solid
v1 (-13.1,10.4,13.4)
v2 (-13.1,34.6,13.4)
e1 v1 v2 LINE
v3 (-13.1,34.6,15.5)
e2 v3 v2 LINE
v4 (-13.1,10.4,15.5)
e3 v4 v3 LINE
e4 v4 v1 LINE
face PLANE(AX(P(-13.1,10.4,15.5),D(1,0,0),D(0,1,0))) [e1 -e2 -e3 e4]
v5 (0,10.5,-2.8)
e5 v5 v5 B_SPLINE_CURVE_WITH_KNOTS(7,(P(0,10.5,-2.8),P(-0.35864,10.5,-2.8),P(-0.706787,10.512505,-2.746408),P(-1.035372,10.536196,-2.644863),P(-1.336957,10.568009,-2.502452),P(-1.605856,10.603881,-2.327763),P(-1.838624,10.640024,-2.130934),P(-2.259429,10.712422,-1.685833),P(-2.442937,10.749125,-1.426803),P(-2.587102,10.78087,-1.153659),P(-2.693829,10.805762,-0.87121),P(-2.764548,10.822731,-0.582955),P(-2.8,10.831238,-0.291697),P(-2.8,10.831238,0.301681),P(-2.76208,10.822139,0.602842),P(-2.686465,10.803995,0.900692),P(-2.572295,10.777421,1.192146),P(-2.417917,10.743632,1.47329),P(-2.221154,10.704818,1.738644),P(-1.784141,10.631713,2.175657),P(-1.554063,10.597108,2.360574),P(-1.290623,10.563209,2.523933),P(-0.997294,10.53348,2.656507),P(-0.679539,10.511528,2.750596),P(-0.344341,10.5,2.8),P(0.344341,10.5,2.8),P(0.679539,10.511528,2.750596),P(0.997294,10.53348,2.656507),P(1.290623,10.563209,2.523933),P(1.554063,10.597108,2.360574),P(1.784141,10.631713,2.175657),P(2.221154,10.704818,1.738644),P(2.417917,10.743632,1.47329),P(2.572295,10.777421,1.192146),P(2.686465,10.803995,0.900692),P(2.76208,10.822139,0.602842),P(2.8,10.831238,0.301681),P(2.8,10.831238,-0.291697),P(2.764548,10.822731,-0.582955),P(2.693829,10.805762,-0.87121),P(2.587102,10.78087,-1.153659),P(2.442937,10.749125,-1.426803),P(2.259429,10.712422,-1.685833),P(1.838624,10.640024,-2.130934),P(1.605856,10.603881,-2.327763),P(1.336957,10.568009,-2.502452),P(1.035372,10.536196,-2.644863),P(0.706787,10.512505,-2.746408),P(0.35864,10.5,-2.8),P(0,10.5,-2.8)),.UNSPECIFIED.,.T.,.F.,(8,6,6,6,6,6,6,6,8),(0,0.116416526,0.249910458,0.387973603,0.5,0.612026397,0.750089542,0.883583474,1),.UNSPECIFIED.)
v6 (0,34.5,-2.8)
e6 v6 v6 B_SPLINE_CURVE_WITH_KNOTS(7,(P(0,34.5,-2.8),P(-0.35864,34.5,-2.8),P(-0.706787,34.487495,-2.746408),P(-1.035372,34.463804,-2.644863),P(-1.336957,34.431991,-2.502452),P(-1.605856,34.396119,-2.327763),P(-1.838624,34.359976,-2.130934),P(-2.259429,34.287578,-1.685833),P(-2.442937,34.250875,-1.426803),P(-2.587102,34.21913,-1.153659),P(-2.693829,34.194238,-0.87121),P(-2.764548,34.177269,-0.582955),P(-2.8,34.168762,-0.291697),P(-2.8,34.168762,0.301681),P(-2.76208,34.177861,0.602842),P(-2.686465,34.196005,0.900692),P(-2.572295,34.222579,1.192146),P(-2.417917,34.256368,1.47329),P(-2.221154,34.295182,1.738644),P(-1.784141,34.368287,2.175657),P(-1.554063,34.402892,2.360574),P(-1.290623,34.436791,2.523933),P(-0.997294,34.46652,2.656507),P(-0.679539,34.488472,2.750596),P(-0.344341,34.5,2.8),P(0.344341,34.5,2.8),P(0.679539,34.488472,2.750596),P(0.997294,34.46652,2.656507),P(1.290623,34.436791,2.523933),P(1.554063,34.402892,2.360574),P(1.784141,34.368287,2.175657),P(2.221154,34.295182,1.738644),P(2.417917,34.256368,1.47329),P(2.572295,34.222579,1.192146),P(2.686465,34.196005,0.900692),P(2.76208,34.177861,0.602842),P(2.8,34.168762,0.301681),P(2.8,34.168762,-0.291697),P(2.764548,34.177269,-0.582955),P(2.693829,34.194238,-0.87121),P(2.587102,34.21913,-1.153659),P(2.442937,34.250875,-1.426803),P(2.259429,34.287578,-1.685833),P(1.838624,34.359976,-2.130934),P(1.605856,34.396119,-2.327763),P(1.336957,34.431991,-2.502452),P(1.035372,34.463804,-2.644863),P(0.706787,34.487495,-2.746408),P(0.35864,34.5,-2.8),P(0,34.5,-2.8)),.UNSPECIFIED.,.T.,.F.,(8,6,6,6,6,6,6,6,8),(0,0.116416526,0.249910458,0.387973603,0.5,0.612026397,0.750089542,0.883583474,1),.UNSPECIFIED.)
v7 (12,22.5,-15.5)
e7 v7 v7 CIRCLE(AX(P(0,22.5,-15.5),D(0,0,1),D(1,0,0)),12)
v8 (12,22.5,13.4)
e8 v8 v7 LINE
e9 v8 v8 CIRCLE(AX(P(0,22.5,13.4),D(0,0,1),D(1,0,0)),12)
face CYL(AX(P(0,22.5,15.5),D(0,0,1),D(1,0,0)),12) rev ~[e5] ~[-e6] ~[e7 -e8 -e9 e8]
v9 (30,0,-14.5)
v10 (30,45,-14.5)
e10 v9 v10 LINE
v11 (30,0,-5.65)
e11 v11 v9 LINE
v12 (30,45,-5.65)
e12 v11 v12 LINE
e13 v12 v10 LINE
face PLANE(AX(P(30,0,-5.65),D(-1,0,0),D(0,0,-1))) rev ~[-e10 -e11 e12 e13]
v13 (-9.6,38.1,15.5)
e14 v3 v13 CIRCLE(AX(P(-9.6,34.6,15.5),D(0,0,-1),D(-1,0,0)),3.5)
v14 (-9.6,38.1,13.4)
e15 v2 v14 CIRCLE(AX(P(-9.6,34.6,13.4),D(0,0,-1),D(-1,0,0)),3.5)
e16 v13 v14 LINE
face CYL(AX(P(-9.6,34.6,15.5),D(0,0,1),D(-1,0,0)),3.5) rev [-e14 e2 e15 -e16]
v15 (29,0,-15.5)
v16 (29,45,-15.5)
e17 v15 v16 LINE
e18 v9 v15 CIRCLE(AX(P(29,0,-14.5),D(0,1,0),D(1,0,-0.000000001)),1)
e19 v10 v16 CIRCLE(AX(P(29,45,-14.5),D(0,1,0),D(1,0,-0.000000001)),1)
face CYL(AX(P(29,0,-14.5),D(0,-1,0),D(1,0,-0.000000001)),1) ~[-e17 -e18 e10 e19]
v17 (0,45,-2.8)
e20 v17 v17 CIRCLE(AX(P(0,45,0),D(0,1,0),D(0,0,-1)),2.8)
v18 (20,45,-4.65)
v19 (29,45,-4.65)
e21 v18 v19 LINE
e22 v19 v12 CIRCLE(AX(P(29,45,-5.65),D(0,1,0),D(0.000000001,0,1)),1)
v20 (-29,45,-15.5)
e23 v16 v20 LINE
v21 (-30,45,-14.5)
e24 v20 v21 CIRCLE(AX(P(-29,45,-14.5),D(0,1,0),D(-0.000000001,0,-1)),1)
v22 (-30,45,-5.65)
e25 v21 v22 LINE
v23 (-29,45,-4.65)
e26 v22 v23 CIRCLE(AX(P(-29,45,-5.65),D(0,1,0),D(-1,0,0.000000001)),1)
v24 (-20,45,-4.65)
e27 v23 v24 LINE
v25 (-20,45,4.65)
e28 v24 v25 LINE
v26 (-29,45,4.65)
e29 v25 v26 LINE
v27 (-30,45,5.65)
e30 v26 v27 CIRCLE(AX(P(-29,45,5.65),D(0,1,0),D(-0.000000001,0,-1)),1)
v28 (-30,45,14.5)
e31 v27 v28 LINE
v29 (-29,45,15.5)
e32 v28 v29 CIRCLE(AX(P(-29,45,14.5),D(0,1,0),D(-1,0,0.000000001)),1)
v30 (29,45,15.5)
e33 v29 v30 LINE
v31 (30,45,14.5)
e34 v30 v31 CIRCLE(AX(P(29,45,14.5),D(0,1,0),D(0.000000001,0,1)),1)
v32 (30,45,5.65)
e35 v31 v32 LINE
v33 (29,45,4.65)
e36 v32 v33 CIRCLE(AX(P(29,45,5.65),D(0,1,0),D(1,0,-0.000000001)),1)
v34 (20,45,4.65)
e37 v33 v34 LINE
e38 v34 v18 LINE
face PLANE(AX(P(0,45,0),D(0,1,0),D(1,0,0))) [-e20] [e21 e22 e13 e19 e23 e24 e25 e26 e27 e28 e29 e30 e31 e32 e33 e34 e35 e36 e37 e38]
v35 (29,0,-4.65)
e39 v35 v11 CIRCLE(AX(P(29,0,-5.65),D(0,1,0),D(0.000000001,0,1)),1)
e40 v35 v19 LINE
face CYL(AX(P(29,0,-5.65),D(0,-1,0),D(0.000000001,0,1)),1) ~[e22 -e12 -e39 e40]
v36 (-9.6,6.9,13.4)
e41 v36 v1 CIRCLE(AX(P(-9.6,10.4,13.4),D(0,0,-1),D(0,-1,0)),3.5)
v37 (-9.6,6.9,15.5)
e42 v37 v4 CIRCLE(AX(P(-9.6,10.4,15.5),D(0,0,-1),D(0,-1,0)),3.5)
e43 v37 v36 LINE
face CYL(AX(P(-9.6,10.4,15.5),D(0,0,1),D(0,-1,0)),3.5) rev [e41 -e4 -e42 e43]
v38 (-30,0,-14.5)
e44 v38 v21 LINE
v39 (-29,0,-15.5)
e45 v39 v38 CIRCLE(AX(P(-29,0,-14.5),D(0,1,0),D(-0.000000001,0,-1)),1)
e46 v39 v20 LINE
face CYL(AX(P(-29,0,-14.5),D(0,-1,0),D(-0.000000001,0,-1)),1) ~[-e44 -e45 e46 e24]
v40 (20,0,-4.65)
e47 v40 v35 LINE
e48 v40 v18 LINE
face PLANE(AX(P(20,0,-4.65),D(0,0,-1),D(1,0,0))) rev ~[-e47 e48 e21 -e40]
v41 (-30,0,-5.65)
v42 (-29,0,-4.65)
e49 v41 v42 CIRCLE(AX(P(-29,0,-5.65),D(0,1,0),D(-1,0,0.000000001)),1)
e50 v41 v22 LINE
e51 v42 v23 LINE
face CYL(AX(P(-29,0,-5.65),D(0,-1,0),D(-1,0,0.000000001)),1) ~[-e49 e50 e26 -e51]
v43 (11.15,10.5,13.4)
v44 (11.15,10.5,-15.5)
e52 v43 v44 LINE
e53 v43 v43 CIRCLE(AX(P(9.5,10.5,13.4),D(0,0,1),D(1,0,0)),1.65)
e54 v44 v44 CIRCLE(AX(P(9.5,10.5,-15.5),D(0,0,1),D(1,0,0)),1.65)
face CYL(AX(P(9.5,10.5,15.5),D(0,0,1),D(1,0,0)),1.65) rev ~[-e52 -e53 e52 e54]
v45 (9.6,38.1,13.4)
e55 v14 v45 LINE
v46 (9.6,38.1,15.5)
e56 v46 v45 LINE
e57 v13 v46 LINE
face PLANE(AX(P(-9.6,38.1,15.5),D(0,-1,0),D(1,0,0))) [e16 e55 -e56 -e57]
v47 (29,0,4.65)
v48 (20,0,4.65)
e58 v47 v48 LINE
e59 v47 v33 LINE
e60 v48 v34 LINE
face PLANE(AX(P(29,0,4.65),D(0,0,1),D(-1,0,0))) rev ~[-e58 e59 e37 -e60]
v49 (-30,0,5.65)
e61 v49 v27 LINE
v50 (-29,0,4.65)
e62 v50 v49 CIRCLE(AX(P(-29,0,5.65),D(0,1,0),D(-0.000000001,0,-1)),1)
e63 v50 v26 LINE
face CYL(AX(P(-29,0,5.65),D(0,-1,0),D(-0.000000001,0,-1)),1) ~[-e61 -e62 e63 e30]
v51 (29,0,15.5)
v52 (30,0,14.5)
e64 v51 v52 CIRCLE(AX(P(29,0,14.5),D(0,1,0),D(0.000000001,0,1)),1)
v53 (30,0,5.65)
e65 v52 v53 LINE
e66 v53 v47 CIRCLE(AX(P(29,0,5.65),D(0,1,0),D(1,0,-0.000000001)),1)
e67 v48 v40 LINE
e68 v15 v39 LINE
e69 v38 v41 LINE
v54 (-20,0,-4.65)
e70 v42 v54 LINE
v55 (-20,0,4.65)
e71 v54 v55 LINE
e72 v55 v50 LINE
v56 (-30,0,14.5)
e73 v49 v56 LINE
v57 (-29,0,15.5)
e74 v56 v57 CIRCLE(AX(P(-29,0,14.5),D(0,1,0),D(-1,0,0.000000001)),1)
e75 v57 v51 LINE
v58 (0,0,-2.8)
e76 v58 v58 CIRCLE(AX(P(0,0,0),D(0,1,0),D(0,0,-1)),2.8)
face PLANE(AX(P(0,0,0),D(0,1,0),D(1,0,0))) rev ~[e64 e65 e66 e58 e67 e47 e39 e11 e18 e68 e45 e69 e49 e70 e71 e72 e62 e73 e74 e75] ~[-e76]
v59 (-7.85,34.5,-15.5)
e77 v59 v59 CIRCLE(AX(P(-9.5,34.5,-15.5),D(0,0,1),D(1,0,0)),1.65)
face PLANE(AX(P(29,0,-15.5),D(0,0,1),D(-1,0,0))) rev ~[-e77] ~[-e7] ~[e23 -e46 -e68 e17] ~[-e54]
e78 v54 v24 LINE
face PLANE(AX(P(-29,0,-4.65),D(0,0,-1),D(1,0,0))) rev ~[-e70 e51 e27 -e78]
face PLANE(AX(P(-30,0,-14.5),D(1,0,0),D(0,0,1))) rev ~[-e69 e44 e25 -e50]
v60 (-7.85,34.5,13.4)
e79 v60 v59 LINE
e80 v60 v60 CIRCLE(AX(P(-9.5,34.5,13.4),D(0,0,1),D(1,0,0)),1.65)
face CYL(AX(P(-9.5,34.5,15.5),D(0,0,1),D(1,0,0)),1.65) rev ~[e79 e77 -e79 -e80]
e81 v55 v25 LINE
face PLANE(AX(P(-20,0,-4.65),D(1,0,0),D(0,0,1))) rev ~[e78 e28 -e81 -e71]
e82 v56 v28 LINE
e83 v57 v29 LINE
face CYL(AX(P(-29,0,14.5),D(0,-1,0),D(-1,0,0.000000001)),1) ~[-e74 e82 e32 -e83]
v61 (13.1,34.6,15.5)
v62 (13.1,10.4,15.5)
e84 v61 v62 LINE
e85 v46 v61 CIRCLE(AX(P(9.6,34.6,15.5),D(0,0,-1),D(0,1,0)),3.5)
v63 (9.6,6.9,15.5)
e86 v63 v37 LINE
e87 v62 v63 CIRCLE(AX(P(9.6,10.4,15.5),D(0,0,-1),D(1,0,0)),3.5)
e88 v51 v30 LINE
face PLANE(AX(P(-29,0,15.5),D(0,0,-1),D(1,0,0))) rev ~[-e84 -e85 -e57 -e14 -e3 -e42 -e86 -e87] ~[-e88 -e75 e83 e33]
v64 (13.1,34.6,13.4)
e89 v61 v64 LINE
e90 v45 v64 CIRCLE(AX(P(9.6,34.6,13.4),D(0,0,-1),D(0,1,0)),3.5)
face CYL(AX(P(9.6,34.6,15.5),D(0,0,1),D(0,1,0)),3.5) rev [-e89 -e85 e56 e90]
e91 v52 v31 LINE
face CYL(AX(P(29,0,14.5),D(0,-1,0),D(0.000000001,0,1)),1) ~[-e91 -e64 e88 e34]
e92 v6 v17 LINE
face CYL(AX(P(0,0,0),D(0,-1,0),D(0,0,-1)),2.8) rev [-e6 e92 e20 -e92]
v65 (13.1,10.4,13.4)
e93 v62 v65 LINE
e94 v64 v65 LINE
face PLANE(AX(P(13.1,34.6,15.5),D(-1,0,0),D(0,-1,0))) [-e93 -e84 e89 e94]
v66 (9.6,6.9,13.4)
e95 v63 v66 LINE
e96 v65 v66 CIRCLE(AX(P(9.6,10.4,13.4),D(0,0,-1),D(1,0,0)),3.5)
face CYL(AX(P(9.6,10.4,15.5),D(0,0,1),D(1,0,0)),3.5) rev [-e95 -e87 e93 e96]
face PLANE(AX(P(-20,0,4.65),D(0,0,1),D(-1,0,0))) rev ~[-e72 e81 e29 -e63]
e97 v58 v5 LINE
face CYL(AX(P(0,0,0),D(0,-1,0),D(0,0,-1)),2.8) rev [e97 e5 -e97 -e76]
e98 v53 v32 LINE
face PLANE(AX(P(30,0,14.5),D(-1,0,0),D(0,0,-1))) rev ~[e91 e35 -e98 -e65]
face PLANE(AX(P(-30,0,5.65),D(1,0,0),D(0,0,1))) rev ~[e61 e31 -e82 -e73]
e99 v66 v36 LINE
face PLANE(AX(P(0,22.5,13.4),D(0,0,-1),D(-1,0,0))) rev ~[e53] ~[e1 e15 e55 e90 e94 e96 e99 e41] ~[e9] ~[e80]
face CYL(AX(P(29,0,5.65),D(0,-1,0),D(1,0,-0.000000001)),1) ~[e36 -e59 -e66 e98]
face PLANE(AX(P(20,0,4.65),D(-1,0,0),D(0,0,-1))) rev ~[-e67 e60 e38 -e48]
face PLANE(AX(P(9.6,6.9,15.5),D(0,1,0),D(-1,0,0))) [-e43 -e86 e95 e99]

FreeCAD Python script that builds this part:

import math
import FreeCAD as App
import Part
import Sketcher
from FreeCAD import Vector

doc = App.newDocument("Part")
body = doc.addObject("PartDesign::Body", "Body")

sketch1 = body.newObject("Sketcher::SketchObject", "Sketch")
sketch1.AttachmentSupport = (doc.getObject("XZ_Plane"), [""])
sketch1.MapMode = "FlatFace"
sketch1.addGeometry([
    Part.LineSegment(Vector(20, 4.65, 0), Vector(20, -4.65, 0)),
    Part.LineSegment(Vector(20, -4.65, 0), Vector(29, -4.65, 0)),
    Part.ArcOfCircle(Part.Circle(Vector(29, -5.65, 0), Vector(0, 0, 1), 1), math.radians(0), math.radians(90)),
    Part.LineSegment(Vector(30, -5.65, 0), Vector(30, -14.5, 0)),
    Part.ArcOfCircle(Part.Circle(Vector(29, -14.5, 0), Vector(0, 0, 1), 1), math.radians(-90), math.radians(0)),
    Part.LineSegment(Vector(29, -15.5, 0), Vector(-29, -15.5, 0)),
    Part.ArcOfCircle(Part.Circle(Vector(-29, -14.5, 0), Vector(0, 0, 1), 1), math.radians(-180), math.radians(-90)),
    Part.LineSegment(Vector(-30, -14.5, 0), Vector(-30, -5.65, 0)),
    Part.ArcOfCircle(Part.Circle(Vector(-29, -5.65, 0), Vector(0, 0, 1), 1), math.radians(90), math.radians(180)),
    Part.LineSegment(Vector(-29, -4.65, 0), Vector(-20, -4.65, 0)),
    Part.LineSegment(Vector(-20, -4.65, 0), Vector(-20, 4.65, 0)),
    Part.LineSegment(Vector(-20, 4.65, 0), Vector(-29, 4.65, 0)),
    Part.ArcOfCircle(Part.Circle(Vector(-29, 5.65, 0), Vector(0, 0, 1), 1), math.radians(-180), math.radians(-90)),
    Part.LineSegment(Vector(-30, 5.65, 0), Vector(-30, 14.5, 0)),
    Part.ArcOfCircle(Part.Circle(Vector(-29, 14.5, 0), Vector(0, 0, 1), 1), math.radians(90), math.radians(180)),
    Part.LineSegment(Vector(-29, 15.5, 0), Vector(29, 15.5, 0)),
    Part.ArcOfCircle(Part.Circle(Vector(29, 14.5, 0), Vector(0, 0, 1), 1), math.radians(0), math.radians(90)),
    Part.LineSegment(Vector(30, 14.5, 0), Vector(30, 5.65, 0)),
    Part.ArcOfCircle(Part.Circle(Vector(29, 5.65, 0), Vector(0, 0, 1), 1), math.radians(-90), math.radians(0)),
    Part.LineSegment(Vector(29, 4.65, 0), Vector(20, 4.65, 0)),
    Part.Circle(Vector(0, 0, 0), Vector(0, 0, 1), 2.8),
], False)
sketch1.addConstraint([
    Sketcher.Constraint("Coincident", 0, 2, 1, 1),
    Sketcher.Constraint("Tangent", 1, 2, 2, 2),
    Sketcher.Constraint("Tangent", 2, 1, 3, 1),
    Sketcher.Constraint("Tangent", 3, 2, 4, 2),
    Sketcher.Constraint("Tangent", 4, 1, 5, 1),
    Sketcher.Constraint("Tangent", 5, 2, 6, 2),
    Sketcher.Constraint("Tangent", 6, 1, 7, 1),
    Sketcher.Constraint("Tangent", 7, 2, 8, 2),
    Sketcher.Constraint("Tangent", 8, 1, 9, 1),
    Sketcher.Constraint("Coincident", 9, 2, 10, 1),
    Sketcher.Constraint("Coincident", 10, 2, 11, 1),
    Sketcher.Constraint("Tangent", 11, 2, 12, 2),
    Sketcher.Constraint("Tangent", 12, 1, 13, 1),
    Sketcher.Constraint("Tangent", 13, 2, 14, 2),
    Sketcher.Constraint("Tangent", 14, 1, 15, 1),
    Sketcher.Constraint("Tangent", 15, 2, 16, 2),
    Sketcher.Constraint("Tangent", 16, 1, 17, 1),
    Sketcher.Constraint("Tangent", 17, 2, 18, 2),
    Sketcher.Constraint("Tangent", 18, 1, 19, 1),
    Sketcher.Constraint("Coincident", 19, 2, 0, 1),
    Sketcher.Constraint("Vertical", 0),
    Sketcher.Constraint("Horizontal", 1),
    Sketcher.Constraint("Vertical", 3),
    Sketcher.Constraint("Horizontal", 5),
    Sketcher.Constraint("Vertical", 7),
    Sketcher.Constraint("Horizontal", 9),
    Sketcher.Constraint("Vertical", 10),
    Sketcher.Constraint("Horizontal", 11),
    Sketcher.Constraint("Vertical", 13),
    Sketcher.Constraint("Horizontal", 15),
    Sketcher.Constraint("Vertical", 17),
    Sketcher.Constraint("Horizontal", 19),
    Sketcher.Constraint("Coincident", 20, 3, -1, 1),
    Sketcher.Constraint("Equal", 2, 4),
    Sketcher.Constraint("Equal", 4, 6),
    Sketcher.Constraint("Equal", 6, 8),
    Sketcher.Constraint("Equal", 8, 12),
    Sketcher.Constraint("Equal", 12, 14),
    Sketcher.Constraint("Equal", 14, 16),
    Sketcher.Constraint("Equal", 16, 18),
    Sketcher.Constraint("Symmetric", 2, 3, 12, 3, -1, 1),
    Sketcher.Constraint("Symmetric", 6, 3, 16, 3, -1, 1),
    Sketcher.Constraint("Symmetric", 9, 2, 19, 2, -1, 1),
    Sketcher.Constraint("Symmetric", 2, 3, 8, 3, -2),
    Sketcher.Constraint("Radius", 2, 1.0),
    Sketcher.Constraint("Diameter", 20, 5.6),
    Sketcher.Constraint("DistanceX", 1, 1, 1, 2, 9.0),
    Sketcher.Constraint("DistanceX", 5, 2, 5, 1, 58.0),
    Sketcher.Constraint("DistanceY", 0, 2, 0, 1, 9.3),
    Sketcher.Constraint("DistanceY", 6, 3, 14, 3, 29.0),
])
pad1 = body.newObject("PartDesign::Pad", "Pad")
pad1.Profile = sketch1
pad1.Length = 45
pad1.Reversed = True

sketch2 = body.newObject("Sketcher::SketchObject", "Sketch001")
sketch2.AttachmentSupport = (doc.getObject("XY_Plane"), [""])
sketch2.MapMode = "FlatFace"
sketch2.AttachmentOffset = App.Placement(Vector(0, 0, 15.5), App.Rotation())
sketch2.addGeometry([
    Part.Circle(Vector(0, 22.5, 0), Vector(0, 0, 1), 12),
    Part.Circle(Vector(-9.5, 34.5, 0), Vector(0, 0, 1), 1.65),
    Part.Circle(Vector(9.5, 10.5, 0), Vector(0, 0, 1), 1.65),
], False)
sketch2.addConstraint([
    Sketcher.Constraint("Equal", 1, 2),
    Sketcher.Constraint("PointOnObject", 0, 3, -2),
    Sketcher.Constraint("Diameter", 0, 24.0),
    Sketcher.Constraint("Diameter", 1, 3.3),
    Sketcher.Constraint("DistanceY", 0, 3, 1, 3, 12.0),
    Sketcher.Constraint("DistanceY", 2, 3, 0, 3, 12.0),
    Sketcher.Constraint("DistanceX", 1, 3, 2, 3, 19.0),
    Sketcher.Constraint("DistanceY", -1, 1, 0, 3, 22.5),
    Sketcher.Constraint("DistanceX", 1, 3, -1, 1, 9.5),
])
pocket1 = body.newObject("PartDesign::Pocket", "Pocket")
pocket1.Profile = sketch2
pocket1.Length = 56

sketch3 = body.newObject("Sketcher::SketchObject", "Sketch002")
sketch3.AttachmentSupport = (doc.getObject("XY_Plane"), [""])
sketch3.MapMode = "FlatFace"
sketch3.AttachmentOffset = App.Placement(Vector(0, 0, 15.5), App.Rotation())
sketch3.addGeometry([
    Part.LineSegment(Vector(9.6, 38.1, 0), Vector(-9.6, 38.1, 0)),
    Part.ArcOfCircle(Part.Circle(Vector(-9.6, 34.6, 0), Vector(0, 0, 1), 3.5), math.radians(90), math.radians(180)),
    Part.LineSegment(Vector(-13.1, 34.6, 0), Vector(-13.1, 10.4, 0)),
    Part.ArcOfCircle(Part.Circle(Vector(-9.6, 10.4, 0), Vector(0, 0, 1), 3.5), math.radians(-180), math.radians(-90)),
    Part.LineSegment(Vector(-9.6, 6.9, 0), Vector(9.6, 6.9, 0)),
    Part.ArcOfCircle(Part.Circle(Vector(9.6, 10.4, 0), Vector(0, 0, 1), 3.5), math.radians(-90), math.radians(0)),
    Part.LineSegment(Vector(13.1, 10.4, 0), Vector(13.1, 34.6, 0)),
    Part.ArcOfCircle(Part.Circle(Vector(9.6, 34.6, 0), Vector(0, 0, 1), 3.5), math.radians(0), math.radians(90)),
], False)
sketch3.addConstraint([
    Sketcher.Constraint("Tangent", 0, 2, 1, 1),
    Sketcher.Constraint("Tangent", 1, 2, 2, 1),
    Sketcher.Constraint("Tangent", 2, 2, 3, 1),
    Sketcher.Constraint("Tangent", 3, 2, 4, 1),
    Sketcher.Constraint("Tangent", 4, 2, 5, 1),
    Sketcher.Constraint("Tangent", 5, 2, 6, 1),
    Sketcher.Constraint("Tangent", 6, 2, 7, 1),
    Sketcher.Constraint("Tangent", 7, 2, 0, 1),
    Sketcher.Constraint("Horizontal", 0),
    Sketcher.Constraint("Vertical", 2),
    Sketcher.Constraint("Horizontal", 4),
    Sketcher.Constraint("Vertical", 6),
    Sketcher.Constraint("Equal", 1, 3),
    Sketcher.Constraint("Equal", 3, 5),
    Sketcher.Constraint("Equal", 5, 7),
    Sketcher.Constraint("Radius", 1, 3.5),
    Sketcher.Constraint("DistanceX", 0, 2, 0, 1, 19.2),
    Sketcher.Constraint("DistanceY", 2, 2, 2, 1, 24.2),
    Sketcher.Constraint("DistanceX", 1, 3, -1, 1, 9.6),
    Sketcher.Constraint("DistanceY", -1, 1, 1, 3, 34.6),
])
pocket2 = body.newObject("PartDesign::Pocket", "Pocket001")
pocket2.Profile = sketch3
pocket2.Length = 2.1

doc.recompute()
